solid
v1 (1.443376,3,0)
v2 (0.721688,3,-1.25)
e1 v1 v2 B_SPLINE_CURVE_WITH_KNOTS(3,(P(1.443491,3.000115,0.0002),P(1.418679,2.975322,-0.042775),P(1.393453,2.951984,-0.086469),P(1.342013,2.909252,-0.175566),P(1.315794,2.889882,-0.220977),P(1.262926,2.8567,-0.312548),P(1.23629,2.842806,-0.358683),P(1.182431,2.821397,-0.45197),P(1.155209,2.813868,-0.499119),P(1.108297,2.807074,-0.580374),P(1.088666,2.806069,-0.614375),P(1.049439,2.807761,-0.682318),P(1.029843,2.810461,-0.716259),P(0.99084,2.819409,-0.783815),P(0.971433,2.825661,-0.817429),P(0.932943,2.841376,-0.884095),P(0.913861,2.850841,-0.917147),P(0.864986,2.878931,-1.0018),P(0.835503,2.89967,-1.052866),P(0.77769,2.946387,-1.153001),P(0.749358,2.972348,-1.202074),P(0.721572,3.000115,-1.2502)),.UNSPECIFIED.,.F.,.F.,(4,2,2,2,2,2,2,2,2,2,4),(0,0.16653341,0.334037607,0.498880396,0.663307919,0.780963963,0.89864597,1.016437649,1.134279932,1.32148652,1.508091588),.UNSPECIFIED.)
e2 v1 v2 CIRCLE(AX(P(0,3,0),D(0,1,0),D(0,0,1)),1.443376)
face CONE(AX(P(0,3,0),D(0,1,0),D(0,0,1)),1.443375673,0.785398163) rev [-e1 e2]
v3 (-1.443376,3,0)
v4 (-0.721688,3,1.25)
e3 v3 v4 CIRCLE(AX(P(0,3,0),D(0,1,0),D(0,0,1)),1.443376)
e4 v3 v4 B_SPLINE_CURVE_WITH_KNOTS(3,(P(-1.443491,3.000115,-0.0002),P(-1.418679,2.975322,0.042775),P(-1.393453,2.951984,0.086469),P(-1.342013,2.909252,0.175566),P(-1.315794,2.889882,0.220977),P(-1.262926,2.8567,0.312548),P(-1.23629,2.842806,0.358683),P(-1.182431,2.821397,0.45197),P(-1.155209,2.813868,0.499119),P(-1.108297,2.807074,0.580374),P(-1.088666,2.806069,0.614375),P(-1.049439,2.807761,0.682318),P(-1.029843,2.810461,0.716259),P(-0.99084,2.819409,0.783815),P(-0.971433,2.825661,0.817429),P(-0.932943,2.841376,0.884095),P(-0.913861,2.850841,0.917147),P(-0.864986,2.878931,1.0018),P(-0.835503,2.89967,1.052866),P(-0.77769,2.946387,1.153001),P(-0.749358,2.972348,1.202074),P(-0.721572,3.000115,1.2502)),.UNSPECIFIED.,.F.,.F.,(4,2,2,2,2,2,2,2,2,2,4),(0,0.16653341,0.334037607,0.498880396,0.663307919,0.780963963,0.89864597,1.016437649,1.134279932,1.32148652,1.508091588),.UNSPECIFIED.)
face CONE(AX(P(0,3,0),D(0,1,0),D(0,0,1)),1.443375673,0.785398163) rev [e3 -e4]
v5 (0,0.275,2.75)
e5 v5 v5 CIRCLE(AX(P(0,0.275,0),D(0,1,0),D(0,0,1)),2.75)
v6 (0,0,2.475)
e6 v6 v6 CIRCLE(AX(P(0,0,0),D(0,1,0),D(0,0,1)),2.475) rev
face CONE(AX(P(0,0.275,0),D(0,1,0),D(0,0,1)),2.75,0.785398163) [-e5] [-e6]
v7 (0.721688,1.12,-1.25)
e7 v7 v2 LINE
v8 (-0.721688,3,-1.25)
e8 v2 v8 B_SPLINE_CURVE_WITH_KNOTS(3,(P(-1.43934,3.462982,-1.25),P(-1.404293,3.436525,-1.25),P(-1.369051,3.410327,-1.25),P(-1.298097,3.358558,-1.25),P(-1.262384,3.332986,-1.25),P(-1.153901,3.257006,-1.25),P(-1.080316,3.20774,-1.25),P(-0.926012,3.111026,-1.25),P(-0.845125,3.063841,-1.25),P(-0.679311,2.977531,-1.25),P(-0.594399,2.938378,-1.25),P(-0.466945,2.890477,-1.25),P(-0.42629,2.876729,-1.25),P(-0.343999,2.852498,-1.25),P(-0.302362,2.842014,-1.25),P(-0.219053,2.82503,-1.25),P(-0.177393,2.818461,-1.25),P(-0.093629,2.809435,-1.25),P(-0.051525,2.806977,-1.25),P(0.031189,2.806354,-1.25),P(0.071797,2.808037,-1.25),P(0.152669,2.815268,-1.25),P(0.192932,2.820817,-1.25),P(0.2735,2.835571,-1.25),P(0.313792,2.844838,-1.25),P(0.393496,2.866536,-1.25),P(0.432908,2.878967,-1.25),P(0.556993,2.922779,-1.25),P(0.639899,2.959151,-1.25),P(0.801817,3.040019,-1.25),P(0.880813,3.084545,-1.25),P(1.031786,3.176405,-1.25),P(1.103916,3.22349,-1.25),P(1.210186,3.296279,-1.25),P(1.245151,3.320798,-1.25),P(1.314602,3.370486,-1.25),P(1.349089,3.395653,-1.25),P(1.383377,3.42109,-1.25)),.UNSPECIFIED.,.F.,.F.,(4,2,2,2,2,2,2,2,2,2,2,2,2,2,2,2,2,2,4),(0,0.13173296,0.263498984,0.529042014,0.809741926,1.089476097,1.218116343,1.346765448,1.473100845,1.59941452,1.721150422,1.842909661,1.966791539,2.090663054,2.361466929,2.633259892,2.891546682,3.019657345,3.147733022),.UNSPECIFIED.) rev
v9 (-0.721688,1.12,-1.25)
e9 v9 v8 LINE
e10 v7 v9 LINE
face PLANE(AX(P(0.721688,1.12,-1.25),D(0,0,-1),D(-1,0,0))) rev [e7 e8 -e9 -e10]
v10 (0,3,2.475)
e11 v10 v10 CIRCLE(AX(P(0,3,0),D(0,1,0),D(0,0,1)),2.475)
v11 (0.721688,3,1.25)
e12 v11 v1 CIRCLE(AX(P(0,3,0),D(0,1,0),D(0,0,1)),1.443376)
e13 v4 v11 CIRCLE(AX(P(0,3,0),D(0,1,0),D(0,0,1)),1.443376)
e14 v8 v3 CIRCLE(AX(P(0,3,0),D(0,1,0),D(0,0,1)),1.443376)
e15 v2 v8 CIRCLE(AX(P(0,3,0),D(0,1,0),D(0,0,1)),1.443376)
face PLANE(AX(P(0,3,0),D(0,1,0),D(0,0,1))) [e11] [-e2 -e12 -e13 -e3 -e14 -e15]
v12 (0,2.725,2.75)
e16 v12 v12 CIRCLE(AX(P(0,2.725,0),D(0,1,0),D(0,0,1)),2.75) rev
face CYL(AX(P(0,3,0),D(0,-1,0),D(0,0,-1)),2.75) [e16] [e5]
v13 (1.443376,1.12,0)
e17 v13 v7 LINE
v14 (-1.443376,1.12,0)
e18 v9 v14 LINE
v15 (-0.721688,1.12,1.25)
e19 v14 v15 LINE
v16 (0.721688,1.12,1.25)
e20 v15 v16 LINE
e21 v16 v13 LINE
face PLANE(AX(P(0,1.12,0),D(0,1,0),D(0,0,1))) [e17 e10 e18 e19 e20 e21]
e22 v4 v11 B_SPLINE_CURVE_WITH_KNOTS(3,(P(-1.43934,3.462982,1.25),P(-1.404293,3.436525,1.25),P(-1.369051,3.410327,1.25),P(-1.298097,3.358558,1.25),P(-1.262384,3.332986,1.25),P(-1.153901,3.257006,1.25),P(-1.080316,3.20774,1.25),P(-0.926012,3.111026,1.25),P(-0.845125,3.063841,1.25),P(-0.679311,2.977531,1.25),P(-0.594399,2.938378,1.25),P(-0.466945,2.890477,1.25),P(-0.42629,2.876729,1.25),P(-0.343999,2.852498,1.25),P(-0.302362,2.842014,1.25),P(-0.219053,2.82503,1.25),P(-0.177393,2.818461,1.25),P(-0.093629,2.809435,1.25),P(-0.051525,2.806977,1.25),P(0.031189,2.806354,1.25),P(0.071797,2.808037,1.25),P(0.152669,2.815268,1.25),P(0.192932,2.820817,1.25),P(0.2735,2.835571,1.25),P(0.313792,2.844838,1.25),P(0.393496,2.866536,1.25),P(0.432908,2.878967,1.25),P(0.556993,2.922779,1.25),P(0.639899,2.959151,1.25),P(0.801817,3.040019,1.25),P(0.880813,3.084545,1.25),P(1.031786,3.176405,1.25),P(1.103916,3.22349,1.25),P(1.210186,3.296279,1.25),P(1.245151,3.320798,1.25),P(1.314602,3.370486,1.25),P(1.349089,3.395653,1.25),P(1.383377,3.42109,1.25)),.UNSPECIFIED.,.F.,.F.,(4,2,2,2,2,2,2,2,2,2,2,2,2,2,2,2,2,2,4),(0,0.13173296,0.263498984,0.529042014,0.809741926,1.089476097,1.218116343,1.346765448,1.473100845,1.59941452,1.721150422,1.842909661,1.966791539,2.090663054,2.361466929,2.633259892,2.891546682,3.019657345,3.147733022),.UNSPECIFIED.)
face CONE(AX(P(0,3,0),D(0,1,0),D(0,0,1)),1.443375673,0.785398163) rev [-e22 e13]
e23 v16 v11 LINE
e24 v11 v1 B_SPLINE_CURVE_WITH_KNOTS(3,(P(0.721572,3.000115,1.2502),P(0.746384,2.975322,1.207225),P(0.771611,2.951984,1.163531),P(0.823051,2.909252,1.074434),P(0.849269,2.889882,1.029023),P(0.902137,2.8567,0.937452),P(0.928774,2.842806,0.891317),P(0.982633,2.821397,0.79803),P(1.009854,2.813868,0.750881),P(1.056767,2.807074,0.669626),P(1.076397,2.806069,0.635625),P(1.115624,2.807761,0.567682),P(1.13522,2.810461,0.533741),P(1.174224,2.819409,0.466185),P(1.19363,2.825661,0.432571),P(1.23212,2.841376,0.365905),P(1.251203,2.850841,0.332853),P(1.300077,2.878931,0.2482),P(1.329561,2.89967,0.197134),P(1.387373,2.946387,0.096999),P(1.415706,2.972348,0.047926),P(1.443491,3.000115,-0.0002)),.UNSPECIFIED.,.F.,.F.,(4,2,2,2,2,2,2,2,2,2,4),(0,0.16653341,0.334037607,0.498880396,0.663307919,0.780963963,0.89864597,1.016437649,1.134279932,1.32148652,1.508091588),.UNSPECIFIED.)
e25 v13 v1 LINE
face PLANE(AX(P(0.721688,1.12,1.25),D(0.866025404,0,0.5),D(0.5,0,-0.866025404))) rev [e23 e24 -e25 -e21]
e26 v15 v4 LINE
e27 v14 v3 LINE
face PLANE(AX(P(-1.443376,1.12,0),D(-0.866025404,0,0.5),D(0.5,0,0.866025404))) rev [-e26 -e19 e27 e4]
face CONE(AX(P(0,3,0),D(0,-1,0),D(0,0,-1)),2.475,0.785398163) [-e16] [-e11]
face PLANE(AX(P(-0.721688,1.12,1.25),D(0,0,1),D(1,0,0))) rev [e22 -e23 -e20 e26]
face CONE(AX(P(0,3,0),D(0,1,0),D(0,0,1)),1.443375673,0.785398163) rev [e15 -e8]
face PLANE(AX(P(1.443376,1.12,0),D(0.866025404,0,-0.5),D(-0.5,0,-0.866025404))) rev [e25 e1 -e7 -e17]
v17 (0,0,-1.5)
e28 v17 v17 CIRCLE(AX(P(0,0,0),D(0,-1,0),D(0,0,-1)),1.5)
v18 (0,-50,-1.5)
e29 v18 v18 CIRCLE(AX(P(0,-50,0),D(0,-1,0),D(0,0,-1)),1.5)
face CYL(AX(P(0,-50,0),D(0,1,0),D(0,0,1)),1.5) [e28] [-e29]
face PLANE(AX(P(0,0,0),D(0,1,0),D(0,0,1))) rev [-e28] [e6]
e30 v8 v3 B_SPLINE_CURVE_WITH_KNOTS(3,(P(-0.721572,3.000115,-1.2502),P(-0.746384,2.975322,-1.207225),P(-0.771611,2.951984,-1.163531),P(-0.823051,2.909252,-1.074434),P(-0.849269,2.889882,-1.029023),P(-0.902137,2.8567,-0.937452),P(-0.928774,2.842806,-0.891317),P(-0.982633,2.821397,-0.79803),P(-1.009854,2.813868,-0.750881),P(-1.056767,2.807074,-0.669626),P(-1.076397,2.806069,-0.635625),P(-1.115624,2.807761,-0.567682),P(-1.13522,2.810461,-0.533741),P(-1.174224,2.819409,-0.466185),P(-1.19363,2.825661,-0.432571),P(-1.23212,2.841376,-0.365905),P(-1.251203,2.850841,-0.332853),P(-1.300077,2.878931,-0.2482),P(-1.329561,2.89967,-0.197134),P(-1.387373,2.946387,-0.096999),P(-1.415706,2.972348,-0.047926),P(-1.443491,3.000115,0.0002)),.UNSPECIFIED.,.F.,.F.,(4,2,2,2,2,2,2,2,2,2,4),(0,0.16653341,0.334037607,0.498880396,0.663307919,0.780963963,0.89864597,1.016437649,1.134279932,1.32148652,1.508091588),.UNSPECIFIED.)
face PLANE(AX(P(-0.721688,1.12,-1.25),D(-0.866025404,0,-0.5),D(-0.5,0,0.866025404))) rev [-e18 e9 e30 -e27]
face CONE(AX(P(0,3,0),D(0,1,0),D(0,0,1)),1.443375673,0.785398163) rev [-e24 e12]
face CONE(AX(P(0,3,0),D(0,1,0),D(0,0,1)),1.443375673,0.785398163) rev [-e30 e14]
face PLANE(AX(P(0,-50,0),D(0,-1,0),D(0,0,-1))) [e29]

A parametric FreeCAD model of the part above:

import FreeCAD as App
import Part
import Sketcher

V = App.Vector
Q = App.Units.Quantity


def edges_at(feature, points):
    """Names of the edges that pass closest to the given points."""
    edges = feature.Shape.Edges
    near = lambda p: min(range(len(edges)), key=lambda i: edges[i].distToShape(Part.Vertex(*p))[0])
    return sorted({f"Edge{near(p) + 1}" for p in points})


def add_polygon(sketch, points):
    """Adds a closed chain of lines whose ends are joined by coincident constraints."""
    first, n = sketch.GeometryCount, len(points)
    for a, b in zip(points, points[1:] + points[:1]):
        sketch.addGeometry(Part.LineSegment(App.Vector(*a, 0), App.Vector(*b, 0)), False)
    for i in range(n):
        sketch.addConstraint(Sketcher.Constraint("Coincident", first + i, 2, first + (i + 1) % n, 1))

doc = App.newDocument("Part")
body = doc.addObject("PartDesign::Body", "Body")

sketch1 = body.newObject("Sketcher::SketchObject", "Sketch")
sketch1.AttachmentSupport = (doc.getObject("XZ_Plane"), [""])
sketch1.MapMode = "FlatFace"
sketch1.addGeometry(Part.Circle(V(0, 0, 0), V(0, 0, 1), 2.8), False)
sketch1.addConstraint([
    Sketcher.Constraint("Coincident", 0, 3, -1, 1),
    Sketcher.Constraint("Diameter", 0, 5.5),
])
pad1 = body.newObject("PartDesign::Pad", "Pad")
pad1.Profile = sketch1
pad1.Length = 3
pad1.Reversed = True

sketch2 = body.newObject("Sketcher::SketchObject", "Sketch001")
sketch2.AttachmentSupport = (doc.getObject("XZ_Plane"), [""])
sketch2.MapMode = "FlatFace"
sketch2.AttachmentOffset = App.Placement(V(0, 0, -3), App.Rotation())
add_polygon(sketch2, [(0.7, -1.2), (-0.7, -1.2), (-1.4, 0), (-0.7, 1.2), (0.7, 1.2), (1.4, 0)])
sketch2.addConstraint([
    Sketcher.Constraint("Horizontal", 0),
    Sketcher.Constraint("Horizontal", 3),
    Sketcher.Constraint("Symmetric", 0, 2, 3, 2, -1, 1),
    Sketcher.Constraint("Symmetric", 1, 2, 4, 2, -1, 1),
    Sketcher.Constraint("PointOnObject", 1, 2, -1),
    Sketcher.Constraint("Parallel", 2, 5),
    Sketcher.Constraint("Vertical", 0, 2, 2, 2),
    Sketcher.Constraint("Angle", 1, Q("120 deg")),
    Sketcher.Constraint("DistanceY", 0, 2, 2, 2, 2.5),
    Sketcher.Constraint("DistanceX", 0, 2, 0, 1, 1.443376),
])
pocket1 = body.newObject("PartDesign::Pocket", "Pocket")
pocket1.Profile = sketch2
pocket1.Length = 1.88
pocket1.Reversed = True

sketch3 = body.newObject("Sketcher::SketchObject", "Sketch002")
sketch3.AttachmentSupport = (doc.getObject("YZ_Plane"), [""])
sketch3.MapMode = "FlatFace"
add_polygon(sketch3, [(3, 0), (3, 1.4), (1.6, 0)])
sketch3.addConstraint([
    Sketcher.Constraint("Vertical", 0),
    Sketcher.Constraint("Horizontal", 2),
    Sketcher.Constraint("PointOnObject", 1, 2, -1),
    Sketcher.Constraint("Equal", 2, 0),
    Sketcher.Constraint("DistanceX", -1, 1, 0, 2, 3.0),
    Sketcher.Constraint("Distance", 1, 2.041241),
])
groove = body.newObject("PartDesign::Groove", "Groove")
groove.Profile = sketch3
groove.ReferenceAxis = (sketch3, ["H_Axis"])
groove.Angle = 360
doc.recompute()

chamfer = body.newObject("PartDesign::Chamfer", "Chamfer")
chamfer.Base = (groove, edges_at(groove, [(0, 0, -2.75), (0, 3, -2.75)]))
chamfer.Size = 0.275

sketch4 = body.newObject("Sketcher::SketchObject", "Sketch003")
sketch4.AttachmentSupport = (doc.getObject("XZ_Plane"), [""])
sketch4.MapMode = "FlatFace"
sketch4.addGeometry(Part.Circle(V(0, 0, 0), V(0, 0, 1), 1.5), False)
sketch4.addConstraint([
    Sketcher.Constraint("Coincident", 0, 3, -1, 1),
    Sketcher.Constraint("Diameter", 0, 3.0),
])
pad2 = body.newObject("PartDesign::Pad", "Pad001")
pad2.Profile = sketch4
pad2.Length = 50

doc.recompute()
